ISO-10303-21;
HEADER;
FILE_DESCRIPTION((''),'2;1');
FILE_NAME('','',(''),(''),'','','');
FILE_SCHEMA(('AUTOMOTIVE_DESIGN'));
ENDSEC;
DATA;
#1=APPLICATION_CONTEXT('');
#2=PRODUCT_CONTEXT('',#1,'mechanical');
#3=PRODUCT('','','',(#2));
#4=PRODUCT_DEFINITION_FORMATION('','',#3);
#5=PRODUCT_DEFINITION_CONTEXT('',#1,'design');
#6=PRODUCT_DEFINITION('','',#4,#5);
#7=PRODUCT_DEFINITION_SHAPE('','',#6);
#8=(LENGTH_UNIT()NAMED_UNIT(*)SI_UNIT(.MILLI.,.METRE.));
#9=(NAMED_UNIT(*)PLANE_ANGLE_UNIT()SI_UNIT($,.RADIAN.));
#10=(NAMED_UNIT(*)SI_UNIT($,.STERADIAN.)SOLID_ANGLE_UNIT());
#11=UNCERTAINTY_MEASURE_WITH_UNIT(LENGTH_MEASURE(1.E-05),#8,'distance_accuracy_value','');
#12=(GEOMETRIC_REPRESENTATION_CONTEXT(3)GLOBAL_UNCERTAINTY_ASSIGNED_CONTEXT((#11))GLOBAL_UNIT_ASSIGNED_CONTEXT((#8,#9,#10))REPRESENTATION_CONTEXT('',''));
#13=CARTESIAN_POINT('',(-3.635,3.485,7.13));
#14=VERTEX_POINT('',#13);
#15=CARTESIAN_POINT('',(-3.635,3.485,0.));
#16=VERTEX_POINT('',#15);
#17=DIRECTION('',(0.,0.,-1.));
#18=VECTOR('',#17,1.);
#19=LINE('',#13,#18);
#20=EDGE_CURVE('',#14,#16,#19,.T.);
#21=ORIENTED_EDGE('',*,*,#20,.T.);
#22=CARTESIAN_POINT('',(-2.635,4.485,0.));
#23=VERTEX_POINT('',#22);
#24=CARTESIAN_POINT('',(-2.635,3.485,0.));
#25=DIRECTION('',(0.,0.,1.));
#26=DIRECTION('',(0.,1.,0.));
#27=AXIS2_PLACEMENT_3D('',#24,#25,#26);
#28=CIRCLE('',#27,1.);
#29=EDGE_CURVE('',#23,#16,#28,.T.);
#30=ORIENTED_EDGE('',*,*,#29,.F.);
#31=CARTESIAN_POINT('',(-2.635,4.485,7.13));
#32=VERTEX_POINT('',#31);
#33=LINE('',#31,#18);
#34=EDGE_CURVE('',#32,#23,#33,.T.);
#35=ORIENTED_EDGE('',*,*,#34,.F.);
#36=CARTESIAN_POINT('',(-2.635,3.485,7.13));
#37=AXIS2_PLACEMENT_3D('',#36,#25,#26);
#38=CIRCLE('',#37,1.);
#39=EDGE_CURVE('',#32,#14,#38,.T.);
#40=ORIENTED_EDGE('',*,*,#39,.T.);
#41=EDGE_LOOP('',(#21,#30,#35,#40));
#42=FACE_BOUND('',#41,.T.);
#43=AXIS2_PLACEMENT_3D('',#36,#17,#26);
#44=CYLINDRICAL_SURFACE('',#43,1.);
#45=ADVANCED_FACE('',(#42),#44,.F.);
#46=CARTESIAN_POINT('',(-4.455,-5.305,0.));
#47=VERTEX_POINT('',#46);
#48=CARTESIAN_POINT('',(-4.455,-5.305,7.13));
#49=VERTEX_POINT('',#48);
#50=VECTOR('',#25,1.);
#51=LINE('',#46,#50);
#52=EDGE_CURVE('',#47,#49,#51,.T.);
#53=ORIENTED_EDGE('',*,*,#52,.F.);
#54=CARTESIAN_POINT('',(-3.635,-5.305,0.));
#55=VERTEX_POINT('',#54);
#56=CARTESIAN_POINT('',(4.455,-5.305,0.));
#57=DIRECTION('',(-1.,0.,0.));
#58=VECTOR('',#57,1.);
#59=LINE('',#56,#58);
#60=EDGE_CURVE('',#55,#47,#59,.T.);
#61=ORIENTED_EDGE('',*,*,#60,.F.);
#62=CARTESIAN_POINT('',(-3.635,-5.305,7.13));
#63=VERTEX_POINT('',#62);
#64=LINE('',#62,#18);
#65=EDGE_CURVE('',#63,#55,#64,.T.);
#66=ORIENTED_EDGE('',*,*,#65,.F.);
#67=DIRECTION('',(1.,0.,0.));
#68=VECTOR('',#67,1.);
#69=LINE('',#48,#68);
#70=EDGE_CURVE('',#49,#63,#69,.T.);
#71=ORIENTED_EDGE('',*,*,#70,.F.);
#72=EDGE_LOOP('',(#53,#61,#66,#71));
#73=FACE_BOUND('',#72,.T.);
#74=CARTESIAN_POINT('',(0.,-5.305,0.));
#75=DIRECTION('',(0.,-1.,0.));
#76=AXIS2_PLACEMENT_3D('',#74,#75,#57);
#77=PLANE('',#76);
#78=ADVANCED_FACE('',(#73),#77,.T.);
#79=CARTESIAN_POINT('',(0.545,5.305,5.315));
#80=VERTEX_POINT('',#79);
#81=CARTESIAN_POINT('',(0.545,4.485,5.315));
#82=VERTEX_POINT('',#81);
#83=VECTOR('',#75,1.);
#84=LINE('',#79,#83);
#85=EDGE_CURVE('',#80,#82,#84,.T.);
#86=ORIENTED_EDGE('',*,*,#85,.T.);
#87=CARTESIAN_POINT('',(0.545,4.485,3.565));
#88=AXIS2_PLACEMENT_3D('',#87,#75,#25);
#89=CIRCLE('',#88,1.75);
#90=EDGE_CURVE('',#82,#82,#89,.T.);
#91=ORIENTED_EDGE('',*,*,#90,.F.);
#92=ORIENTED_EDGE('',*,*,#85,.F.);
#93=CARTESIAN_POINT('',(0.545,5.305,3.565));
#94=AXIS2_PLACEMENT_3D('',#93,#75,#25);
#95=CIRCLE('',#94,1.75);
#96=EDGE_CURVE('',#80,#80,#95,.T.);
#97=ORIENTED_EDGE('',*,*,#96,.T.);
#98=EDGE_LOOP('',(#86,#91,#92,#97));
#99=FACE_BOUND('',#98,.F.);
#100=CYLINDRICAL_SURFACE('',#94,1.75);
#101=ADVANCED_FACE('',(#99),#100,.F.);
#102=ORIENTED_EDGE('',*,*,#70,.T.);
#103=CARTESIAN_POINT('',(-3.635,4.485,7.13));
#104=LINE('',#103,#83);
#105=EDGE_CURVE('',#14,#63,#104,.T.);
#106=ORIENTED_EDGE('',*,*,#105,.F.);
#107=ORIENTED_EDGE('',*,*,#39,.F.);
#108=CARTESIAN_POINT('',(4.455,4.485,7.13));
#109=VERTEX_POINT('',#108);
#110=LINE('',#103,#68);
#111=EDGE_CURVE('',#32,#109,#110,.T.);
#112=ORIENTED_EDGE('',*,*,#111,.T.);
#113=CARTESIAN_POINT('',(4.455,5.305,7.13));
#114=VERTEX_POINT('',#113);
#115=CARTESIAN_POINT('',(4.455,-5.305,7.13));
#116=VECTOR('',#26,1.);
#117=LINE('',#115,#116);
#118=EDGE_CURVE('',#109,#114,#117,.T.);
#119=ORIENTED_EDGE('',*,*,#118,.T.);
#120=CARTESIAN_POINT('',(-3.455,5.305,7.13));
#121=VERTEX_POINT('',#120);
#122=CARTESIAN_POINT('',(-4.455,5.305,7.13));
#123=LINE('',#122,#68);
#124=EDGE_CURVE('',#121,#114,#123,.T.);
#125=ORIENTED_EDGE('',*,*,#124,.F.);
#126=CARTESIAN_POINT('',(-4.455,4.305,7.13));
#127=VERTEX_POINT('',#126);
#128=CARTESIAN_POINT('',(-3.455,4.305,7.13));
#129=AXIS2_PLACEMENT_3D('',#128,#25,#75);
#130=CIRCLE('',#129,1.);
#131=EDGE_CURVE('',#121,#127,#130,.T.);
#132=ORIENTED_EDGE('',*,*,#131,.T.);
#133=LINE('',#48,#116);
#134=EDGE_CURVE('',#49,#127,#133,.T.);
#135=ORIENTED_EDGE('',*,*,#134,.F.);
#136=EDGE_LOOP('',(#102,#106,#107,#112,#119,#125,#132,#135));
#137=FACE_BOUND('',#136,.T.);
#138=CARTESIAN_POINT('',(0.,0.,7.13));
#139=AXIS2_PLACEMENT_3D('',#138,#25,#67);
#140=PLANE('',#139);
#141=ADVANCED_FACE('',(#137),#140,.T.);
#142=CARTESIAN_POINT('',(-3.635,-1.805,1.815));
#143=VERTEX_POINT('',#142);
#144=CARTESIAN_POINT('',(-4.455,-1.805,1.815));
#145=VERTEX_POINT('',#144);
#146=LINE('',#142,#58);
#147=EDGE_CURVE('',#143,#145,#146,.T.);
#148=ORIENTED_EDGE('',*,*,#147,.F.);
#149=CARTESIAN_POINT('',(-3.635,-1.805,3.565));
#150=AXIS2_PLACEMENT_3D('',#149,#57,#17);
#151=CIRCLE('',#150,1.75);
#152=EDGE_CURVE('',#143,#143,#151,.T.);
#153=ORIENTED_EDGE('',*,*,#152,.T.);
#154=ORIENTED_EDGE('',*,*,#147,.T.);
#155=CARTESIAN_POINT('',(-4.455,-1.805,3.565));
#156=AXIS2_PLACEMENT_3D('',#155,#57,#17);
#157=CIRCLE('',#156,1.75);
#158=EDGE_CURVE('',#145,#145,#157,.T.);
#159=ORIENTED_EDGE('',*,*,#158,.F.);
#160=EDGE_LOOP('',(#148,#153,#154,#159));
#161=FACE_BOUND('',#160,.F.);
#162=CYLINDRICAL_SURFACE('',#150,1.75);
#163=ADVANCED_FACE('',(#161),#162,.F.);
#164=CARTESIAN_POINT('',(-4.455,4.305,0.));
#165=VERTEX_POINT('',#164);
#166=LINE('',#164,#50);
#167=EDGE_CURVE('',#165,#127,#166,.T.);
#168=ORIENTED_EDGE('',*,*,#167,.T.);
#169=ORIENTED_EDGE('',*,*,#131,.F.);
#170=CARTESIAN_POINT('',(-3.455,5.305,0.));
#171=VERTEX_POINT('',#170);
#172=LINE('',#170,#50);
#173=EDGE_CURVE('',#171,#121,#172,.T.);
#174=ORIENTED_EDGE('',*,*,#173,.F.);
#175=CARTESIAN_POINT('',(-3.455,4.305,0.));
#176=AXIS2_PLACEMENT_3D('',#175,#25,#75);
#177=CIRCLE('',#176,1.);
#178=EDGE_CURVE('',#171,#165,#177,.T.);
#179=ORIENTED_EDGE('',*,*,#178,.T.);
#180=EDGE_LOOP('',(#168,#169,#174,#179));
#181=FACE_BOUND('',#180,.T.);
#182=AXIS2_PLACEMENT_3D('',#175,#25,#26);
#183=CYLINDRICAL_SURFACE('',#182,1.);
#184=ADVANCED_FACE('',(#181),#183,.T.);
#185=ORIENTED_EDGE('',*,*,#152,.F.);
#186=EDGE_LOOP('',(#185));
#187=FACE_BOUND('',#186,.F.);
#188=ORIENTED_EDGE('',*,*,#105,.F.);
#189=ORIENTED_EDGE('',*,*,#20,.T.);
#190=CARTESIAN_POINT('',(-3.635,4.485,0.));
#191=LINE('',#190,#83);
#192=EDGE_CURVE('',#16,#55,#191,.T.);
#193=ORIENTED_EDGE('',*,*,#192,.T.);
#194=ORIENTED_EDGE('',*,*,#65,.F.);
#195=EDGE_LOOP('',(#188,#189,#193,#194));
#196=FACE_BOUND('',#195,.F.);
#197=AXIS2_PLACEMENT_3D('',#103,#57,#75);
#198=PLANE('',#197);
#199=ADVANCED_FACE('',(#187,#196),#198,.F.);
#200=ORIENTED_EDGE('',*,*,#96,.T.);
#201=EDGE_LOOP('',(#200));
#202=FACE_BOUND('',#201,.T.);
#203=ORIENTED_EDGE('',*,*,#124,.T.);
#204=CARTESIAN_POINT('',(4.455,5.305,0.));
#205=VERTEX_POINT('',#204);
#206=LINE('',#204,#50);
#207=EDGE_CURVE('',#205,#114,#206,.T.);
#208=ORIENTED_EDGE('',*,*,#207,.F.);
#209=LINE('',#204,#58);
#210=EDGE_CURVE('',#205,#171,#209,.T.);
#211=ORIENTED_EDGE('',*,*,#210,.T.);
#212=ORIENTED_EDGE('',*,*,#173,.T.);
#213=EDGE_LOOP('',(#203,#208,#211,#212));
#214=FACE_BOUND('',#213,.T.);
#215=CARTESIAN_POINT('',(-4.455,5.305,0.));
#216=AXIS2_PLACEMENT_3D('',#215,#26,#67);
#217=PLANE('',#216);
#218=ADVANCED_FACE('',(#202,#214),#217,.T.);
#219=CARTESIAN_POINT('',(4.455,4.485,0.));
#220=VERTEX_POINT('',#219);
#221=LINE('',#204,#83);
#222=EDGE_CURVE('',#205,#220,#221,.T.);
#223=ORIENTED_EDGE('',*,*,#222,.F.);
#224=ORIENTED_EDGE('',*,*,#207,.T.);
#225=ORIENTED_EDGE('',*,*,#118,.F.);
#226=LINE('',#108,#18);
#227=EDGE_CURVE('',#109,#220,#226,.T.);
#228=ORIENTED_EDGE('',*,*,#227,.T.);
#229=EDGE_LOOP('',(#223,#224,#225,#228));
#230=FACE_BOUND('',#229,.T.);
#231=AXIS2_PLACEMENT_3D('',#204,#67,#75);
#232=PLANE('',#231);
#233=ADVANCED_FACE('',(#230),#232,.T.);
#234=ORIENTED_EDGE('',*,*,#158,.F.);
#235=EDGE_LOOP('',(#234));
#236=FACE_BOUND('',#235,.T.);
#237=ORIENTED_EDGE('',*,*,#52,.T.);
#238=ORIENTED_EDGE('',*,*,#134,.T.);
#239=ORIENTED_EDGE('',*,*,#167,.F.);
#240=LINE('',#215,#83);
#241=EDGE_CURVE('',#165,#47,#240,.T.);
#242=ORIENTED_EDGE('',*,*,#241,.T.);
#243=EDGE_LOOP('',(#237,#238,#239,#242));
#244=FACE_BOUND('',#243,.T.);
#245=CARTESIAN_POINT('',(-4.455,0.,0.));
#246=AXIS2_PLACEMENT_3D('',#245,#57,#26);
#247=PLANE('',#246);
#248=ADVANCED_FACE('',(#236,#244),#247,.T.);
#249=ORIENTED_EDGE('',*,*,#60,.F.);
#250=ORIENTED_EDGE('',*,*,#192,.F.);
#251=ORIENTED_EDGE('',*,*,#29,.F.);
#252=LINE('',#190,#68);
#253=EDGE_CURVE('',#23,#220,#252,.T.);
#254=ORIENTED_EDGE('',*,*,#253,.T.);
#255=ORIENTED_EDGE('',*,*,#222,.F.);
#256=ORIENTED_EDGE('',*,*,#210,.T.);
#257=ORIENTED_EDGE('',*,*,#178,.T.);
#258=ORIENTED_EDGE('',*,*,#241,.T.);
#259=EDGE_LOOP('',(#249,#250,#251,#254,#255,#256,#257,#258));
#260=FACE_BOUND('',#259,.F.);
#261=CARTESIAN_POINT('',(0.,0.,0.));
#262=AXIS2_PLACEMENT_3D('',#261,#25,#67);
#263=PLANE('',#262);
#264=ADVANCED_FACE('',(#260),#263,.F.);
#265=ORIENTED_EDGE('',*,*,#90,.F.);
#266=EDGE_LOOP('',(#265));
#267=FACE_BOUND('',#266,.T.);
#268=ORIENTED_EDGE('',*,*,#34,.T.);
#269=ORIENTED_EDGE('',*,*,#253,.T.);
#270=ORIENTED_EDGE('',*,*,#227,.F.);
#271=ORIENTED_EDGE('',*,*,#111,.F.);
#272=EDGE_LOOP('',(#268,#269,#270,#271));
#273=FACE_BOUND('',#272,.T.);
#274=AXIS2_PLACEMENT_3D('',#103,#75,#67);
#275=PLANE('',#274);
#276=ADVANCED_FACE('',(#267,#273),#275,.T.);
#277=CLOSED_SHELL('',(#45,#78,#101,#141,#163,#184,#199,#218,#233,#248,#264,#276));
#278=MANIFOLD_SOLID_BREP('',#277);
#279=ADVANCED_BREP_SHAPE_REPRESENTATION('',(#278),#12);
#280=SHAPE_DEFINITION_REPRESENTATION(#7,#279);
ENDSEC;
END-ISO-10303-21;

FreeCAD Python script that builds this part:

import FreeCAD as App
import Part
import Sketcher
from FreeCAD import Vector


def edges_at(feature, points):
    """Names of the edges that pass closest to the given points."""
    edges = feature.Shape.Edges
    near = lambda p: min(range(len(edges)), key=lambda i: edges[i].distToShape(Part.Vertex(*p))[0])
    return sorted({f"Edge{near(p) + 1}" for p in points})


def add_polygon(sketch, points):
    """Adds a closed chain of lines whose ends are joined by coincident constraints."""
    first, n = sketch.GeometryCount, len(points)
    for a, b in zip(points, points[1:] + points[:1]):
        sketch.addGeometry(Part.LineSegment(App.Vector(*a, 0), App.Vector(*b, 0)), False)
    for i in range(n):
        sketch.addConstraint(Sketcher.Constraint("Coincident", first + i, 2, first + (i + 1) % n, 1))

doc = App.newDocument("Part")
params = doc.addObject("Spreadsheet::Sheet", "Params")
for row, (alias, value) in enumerate([
    ("sketch1_width", "8.91 mm"),
    ("sketch1_height", "10.61 mm"),
    ("pad1_length", "7.13 mm"),
    ("sketch2_width", "8.09 mm"),
    ("sketch2_height", "9.79 mm"),
    ("pocket1_length", "7.13 mm"),
    ("sketch3_diameter", "3.5 mm"),
    ("hole_diameter", "3.5 mm"),
    ("sketch4_diameter", "3.5 mm"),
    ("hole2_diameter", "3.5 mm"),
    ("fillet_radius", "1 mm"),
], start=1):
    params.set(f"A{row}", alias)
    params.set(f"B{row}", "=" + value)
    params.setAlias(f"B{row}", alias)

body = doc.addObject("PartDesign::Body", "Body")

sketch1 = body.newObject("Sketcher::SketchObject", "Sketch")
sketch1.AttachmentSupport = (doc.getObject("XY_Plane"), [""])
sketch1.MapMode = "FlatFace"
add_polygon(sketch1, [(-4, 5), (-4, -5), (4, -5), (4, 5)])
sketch1.addConstraint([
    Sketcher.Constraint("Vertical", 0),
    Sketcher.Constraint("Horizontal", 1),
    Sketcher.Constraint("Vertical", 2),
    Sketcher.Constraint("Horizontal", 3),
    Sketcher.Constraint("Symmetric", 0, 2, 2, 2, -1, 1),
    Sketcher.Constraint("DistanceX", 1, 1, 1, 2, 8.91),
    Sketcher.Constraint("DistanceY", 0, 2, 0, 1, 10.61),
])
sketch1.setExpression("Constraints[9]", "Params.sketch1_width")
sketch1.setExpression("Constraints[10]", "Params.sketch1_height")
pad1 = body.newObject("PartDesign::Pad", "Pad")
pad1.Profile = sketch1
pad1.setExpression("Length", "Params.pad1_length")

sketch2 = body.newObject("Sketcher::SketchObject", "Sketch001")
sketch2.AttachmentSupport = (doc.getObject("XY_Plane"), [""])
sketch2.MapMode = "FlatFace"
sketch2.AttachmentOffset = App.Placement(Vector(0, 0, 7.13), App.Rotation())
add_polygon(sketch2, [(4, -5), (4, 4), (-4, 4), (-4, -5)])
sketch2.addConstraint([
    Sketcher.Constraint("Vertical", 0),
    Sketcher.Constraint("Horizontal", 1),
    Sketcher.Constraint("Vertical", 2),
    Sketcher.Constraint("Horizontal", 3),
    Sketcher.Constraint("DistanceX", 1, 2, 1, 1, 8.09),
    Sketcher.Constraint("DistanceY", 0, 1, 0, 2, 9.79),
    Sketcher.Constraint("DistanceX", -1, 1, 0, 2, 4.455),
    Sketcher.Constraint("DistanceY", -1, 1, 0, 2, 4.485),
])
sketch2.setExpression("Constraints[8]", "Params.sketch2_width")
sketch2.setExpression("Constraints[9]", "Params.sketch2_height")
pocket1 = body.newObject("PartDesign::Pocket", "Pocket")
pocket1.Profile = sketch2
pocket1.setExpression("Length", "Params.pocket1_length")

sketch3 = body.newObject("Sketcher::SketchObject", "Sketch002")
sketch3.AttachmentSupport = (doc.getObject("XZ_Plane"), [""])
sketch3.MapMode = "FlatFace"
sketch3.AttachmentOffset = App.Placement(Vector(0, 0, -5.305), App.Rotation())
sketch3.addGeometry(Part.Circle(Vector(0.5, 3.6, 0), Vector(0, 0, 1), 1.8), False)
sketch3.addConstraint([
    Sketcher.Constraint("Diameter", 0, 3.5),
    Sketcher.Constraint("DistanceX", -1, 1, 0, 3, 0.545),
    Sketcher.Constraint("DistanceY", -1, 1, 0, 3, 3.565),
])
sketch3.setExpression("Constraints[0]", "Params.sketch3_diameter")
doc.recompute()
hole = body.newObject("PartDesign::Hole", "Hole")
hole.Profile = sketch3
hole.ThreadType = "None"
hole.setExpression("Diameter", "Params.hole_diameter")
hole.DepthType = "ThroughAll"
hole.Reversed = True

sketch4 = body.newObject("Sketcher::SketchObject", "Sketch003")
sketch4.AttachmentSupport = (doc.getObject("YZ_Plane"), [""])
sketch4.MapMode = "FlatFace"
sketch4.AttachmentOffset = App.Placement(Vector(0, 0, -3.635), App.Rotation())
sketch4.addGeometry(Part.Circle(Vector(-1.8, 3.6, 0), Vector(0, 0, 1), 1.8), False)
sketch4.addConstraint([
    Sketcher.Constraint("Diameter", 0, 3.5),
    Sketcher.Constraint("DistanceX", 0, 3, -1, 1, 1.805),
    Sketcher.Constraint("DistanceY", -1, 1, 0, 3, 3.565),
])
sketch4.setExpression("Constraints[0]", "Params.sketch4_diameter")
doc.recompute()
hole2 = body.newObject("PartDesign::Hole", "Hole001")
hole2.Profile = sketch4
hole2.ThreadType = "None"
hole2.setExpression("Diameter", "Params.hole2_diameter")
hole2.DepthType = "ThroughAll"
doc.recompute()

fillet = body.newObject("PartDesign::Fillet", "Fillet")
fillet.Base = (hole2, edges_at(hole2, [(-4.455, 5.305, 3.565), (-3.635, 4.485, 3.565)]))
fillet.setExpression("Radius", "Params.fillet_radius")

doc.recompute()
